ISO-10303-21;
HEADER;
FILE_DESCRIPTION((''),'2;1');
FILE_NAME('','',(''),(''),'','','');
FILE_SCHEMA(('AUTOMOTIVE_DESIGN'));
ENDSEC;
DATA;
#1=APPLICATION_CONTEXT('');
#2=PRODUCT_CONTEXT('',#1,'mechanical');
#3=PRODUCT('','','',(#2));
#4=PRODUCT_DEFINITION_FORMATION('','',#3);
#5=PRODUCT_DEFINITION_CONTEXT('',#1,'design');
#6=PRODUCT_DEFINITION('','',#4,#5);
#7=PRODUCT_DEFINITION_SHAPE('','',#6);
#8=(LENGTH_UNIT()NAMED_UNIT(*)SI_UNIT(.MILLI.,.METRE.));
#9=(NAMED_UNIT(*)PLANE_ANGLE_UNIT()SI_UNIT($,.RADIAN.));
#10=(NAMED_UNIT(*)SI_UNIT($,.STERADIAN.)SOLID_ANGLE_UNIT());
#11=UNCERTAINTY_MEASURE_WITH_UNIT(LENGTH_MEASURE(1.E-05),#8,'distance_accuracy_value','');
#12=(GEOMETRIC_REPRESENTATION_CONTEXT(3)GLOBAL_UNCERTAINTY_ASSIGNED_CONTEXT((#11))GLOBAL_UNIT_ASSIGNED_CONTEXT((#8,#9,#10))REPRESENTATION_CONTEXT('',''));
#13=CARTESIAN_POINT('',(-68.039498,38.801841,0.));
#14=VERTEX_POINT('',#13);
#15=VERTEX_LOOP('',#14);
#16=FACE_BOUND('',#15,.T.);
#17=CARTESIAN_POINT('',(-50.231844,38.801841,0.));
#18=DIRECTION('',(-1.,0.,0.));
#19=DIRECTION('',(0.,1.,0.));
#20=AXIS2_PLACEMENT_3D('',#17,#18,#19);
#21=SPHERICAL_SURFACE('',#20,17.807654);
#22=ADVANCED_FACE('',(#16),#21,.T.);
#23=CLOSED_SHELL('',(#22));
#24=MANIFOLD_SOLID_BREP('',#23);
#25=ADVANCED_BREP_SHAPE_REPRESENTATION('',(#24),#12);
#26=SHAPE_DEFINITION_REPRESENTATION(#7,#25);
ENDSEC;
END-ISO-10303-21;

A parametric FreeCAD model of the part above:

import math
import FreeCAD as App
import Part
import Sketcher
from FreeCAD import Vector

doc = App.newDocument("Part")
body = doc.addObject("PartDesign::Body", "Body")

sketch1 = body.newObject("Sketcher::SketchObject", "Sketch")
sketch1.AttachmentSupport = (doc.getObject("XY_Plane"), [""])
sketch1.MapMode = "FlatFace"
sketch1.addGeometry(Part.ArcOfCircle(Part.Circle(Vector(-50, 39, 0), Vector(0, 0, 1), 18), math.radians(0), math.radians(180)), False)
sketch1.addGeometry(Part.LineSegment(Vector(-68, 39, 0), Vector(-32, 39, 0)), False)
sketch1.addGeometry(Part.LineSegment(Vector(-32, 39, 0), Vector(-68, 39, 0)), True)
sketch1.addConstraint(Sketcher.Constraint("Coincident", 0, 1, 1, 2))
sketch1.addConstraint(Sketcher.Constraint("Coincident", 1, 1, 0, 2))
sketch1.addConstraint(Sketcher.Constraint("Horizontal", 1))
sketch1.addConstraint(Sketcher.Constraint("Horizontal", 2))
sketch1.addConstraint(Sketcher.Constraint("Coincident", 2, 1, 0, 1))
sketch1.addConstraint(Sketcher.Constraint("Equal", 1, 2))
sketch1.addConstraint(Sketcher.Constraint("Radius", 0, 17.807654))
sketch1.addConstraint(Sketcher.Constraint("DistanceY", -1, 1, 0, 3, 38.801841))
sketch1.addConstraint(Sketcher.Constraint("DistanceX", 0, 1, -1, 1, 32.42419))
sketch1.addConstraint(Sketcher.Constraint("DistanceY", -1, 1, 0, 1, 38.801841))
revolution = body.newObject("PartDesign::Revolution", "Revolution")
revolution.Profile = sketch1
revolution.ReferenceAxis = (sketch1, ["Axis0"])
revolution.Angle = 360

doc.recompute()
